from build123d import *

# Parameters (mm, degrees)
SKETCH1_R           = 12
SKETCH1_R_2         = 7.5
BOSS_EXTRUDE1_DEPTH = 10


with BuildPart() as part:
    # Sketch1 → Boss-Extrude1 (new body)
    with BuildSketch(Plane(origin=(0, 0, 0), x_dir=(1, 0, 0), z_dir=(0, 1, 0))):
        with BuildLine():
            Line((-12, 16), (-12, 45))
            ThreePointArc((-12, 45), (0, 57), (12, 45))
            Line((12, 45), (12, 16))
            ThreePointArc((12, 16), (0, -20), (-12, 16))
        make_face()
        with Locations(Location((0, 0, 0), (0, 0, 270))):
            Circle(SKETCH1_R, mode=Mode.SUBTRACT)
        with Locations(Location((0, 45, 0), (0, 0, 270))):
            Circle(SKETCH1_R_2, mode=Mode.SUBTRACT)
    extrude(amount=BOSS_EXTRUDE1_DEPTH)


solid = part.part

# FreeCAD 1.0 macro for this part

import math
import FreeCAD as App
import Part
import Sketcher
Q = App.Units.Quantity

doc = App.newDocument("Part")
params = doc.addObject("Spreadsheet::Sheet", "Params")
for row, (alias, value) in enumerate([
    ("sketch1_diameter", "24 mm"),
    ("sketch1_diameter2", "15 mm"),
    ("sketch1_radius", "20 mm"),
    ("sketch1_height", "29 mm"),
    ("pad1_length", "10 mm"),
], start=1):
    params.set(f"A{row}", alias)
    params.set(f"B{row}", "=" + value)
    params.setAlias(f"B{row}", alias)

body = doc.addObject("PartDesign::Body", "Body")

sketch1 = body.newObject("Sketcher::SketchObject", "Sketch")
sketch1.AttachmentSupport = (doc.getObject("XZ_Plane"), [""])
sketch1.MapMode = "FlatFace"
sketch1.addGeometry([
    Part.LineSegment(App.Vector(-12, -45, 0), App.Vector(-12, -16, 0)),
    Part.ArcOfCircle(Part.Circle(App.Vector(0, 0, 0), App.Vector(0, 0, 1), 20), math.radians(-53.130102), math.radians(233.130102)),
    Part.LineSegment(App.Vector(12, -16, 0), App.Vector(12, -45, 0)),
    Part.ArcOfCircle(Part.Circle(App.Vector(0, -45, 0), App.Vector(0, 0, 1), 12), math.radians(180), math.radians(360)),
    Part.Circle(App.Vector(0, 0, 0), App.Vector(0, 0, 1), 12),
    Part.Circle(App.Vector(0, -45, 0), App.Vector(0, 0, 1), 7.5),
], False)
sketch1.addConstraint([
    Sketcher.Constraint("Coincident", 0, 2, 1, 2),
    Sketcher.Constraint("Coincident", 1, 1, 2, 1),
    Sketcher.Constraint("Tangent", 2, 2, 3, 2),
    Sketcher.Constraint("Tangent", 3, 1, 0, 1),
    Sketcher.Constraint("Vertical", 0),
    Sketcher.Constraint("Vertical", 2),
    Sketcher.Constraint("Coincident", 1, 3, -1, 1),
    Sketcher.Constraint("Coincident", 4, 3, -1, 1),
    Sketcher.Constraint("Coincident", 5, 3, 3, 3),
    Sketcher.Constraint("Equal", 3, 4),
    Sketcher.Constraint("PointOnObject", 3, 3, -2),
    Sketcher.Constraint("Diameter", 4, Q("24 mm")),
    Sketcher.Constraint("Diameter", 5, Q("15 mm")),
    Sketcher.Constraint("Radius", 1, Q("20 mm")),
    Sketcher.Constraint("DistanceY", 0, 1, 0, 2, Q("29 mm")),
])
sketch1.setExpression("Constraints[11]", "Params.sketch1_diameter")
sketch1.setExpression("Constraints[12]", "Params.sketch1_diameter2")
sketch1.setExpression("Constraints[13]", "Params.sketch1_radius")
sketch1.setExpression("Constraints[14]", "Params.sketch1_height")
pad1 = body.newObject("PartDesign::Pad", "Pad")
pad1.Profile = sketch1
pad1.setExpression("Length", "Params.pad1_length")
pad1.Reversed = True

doc.recompute()
